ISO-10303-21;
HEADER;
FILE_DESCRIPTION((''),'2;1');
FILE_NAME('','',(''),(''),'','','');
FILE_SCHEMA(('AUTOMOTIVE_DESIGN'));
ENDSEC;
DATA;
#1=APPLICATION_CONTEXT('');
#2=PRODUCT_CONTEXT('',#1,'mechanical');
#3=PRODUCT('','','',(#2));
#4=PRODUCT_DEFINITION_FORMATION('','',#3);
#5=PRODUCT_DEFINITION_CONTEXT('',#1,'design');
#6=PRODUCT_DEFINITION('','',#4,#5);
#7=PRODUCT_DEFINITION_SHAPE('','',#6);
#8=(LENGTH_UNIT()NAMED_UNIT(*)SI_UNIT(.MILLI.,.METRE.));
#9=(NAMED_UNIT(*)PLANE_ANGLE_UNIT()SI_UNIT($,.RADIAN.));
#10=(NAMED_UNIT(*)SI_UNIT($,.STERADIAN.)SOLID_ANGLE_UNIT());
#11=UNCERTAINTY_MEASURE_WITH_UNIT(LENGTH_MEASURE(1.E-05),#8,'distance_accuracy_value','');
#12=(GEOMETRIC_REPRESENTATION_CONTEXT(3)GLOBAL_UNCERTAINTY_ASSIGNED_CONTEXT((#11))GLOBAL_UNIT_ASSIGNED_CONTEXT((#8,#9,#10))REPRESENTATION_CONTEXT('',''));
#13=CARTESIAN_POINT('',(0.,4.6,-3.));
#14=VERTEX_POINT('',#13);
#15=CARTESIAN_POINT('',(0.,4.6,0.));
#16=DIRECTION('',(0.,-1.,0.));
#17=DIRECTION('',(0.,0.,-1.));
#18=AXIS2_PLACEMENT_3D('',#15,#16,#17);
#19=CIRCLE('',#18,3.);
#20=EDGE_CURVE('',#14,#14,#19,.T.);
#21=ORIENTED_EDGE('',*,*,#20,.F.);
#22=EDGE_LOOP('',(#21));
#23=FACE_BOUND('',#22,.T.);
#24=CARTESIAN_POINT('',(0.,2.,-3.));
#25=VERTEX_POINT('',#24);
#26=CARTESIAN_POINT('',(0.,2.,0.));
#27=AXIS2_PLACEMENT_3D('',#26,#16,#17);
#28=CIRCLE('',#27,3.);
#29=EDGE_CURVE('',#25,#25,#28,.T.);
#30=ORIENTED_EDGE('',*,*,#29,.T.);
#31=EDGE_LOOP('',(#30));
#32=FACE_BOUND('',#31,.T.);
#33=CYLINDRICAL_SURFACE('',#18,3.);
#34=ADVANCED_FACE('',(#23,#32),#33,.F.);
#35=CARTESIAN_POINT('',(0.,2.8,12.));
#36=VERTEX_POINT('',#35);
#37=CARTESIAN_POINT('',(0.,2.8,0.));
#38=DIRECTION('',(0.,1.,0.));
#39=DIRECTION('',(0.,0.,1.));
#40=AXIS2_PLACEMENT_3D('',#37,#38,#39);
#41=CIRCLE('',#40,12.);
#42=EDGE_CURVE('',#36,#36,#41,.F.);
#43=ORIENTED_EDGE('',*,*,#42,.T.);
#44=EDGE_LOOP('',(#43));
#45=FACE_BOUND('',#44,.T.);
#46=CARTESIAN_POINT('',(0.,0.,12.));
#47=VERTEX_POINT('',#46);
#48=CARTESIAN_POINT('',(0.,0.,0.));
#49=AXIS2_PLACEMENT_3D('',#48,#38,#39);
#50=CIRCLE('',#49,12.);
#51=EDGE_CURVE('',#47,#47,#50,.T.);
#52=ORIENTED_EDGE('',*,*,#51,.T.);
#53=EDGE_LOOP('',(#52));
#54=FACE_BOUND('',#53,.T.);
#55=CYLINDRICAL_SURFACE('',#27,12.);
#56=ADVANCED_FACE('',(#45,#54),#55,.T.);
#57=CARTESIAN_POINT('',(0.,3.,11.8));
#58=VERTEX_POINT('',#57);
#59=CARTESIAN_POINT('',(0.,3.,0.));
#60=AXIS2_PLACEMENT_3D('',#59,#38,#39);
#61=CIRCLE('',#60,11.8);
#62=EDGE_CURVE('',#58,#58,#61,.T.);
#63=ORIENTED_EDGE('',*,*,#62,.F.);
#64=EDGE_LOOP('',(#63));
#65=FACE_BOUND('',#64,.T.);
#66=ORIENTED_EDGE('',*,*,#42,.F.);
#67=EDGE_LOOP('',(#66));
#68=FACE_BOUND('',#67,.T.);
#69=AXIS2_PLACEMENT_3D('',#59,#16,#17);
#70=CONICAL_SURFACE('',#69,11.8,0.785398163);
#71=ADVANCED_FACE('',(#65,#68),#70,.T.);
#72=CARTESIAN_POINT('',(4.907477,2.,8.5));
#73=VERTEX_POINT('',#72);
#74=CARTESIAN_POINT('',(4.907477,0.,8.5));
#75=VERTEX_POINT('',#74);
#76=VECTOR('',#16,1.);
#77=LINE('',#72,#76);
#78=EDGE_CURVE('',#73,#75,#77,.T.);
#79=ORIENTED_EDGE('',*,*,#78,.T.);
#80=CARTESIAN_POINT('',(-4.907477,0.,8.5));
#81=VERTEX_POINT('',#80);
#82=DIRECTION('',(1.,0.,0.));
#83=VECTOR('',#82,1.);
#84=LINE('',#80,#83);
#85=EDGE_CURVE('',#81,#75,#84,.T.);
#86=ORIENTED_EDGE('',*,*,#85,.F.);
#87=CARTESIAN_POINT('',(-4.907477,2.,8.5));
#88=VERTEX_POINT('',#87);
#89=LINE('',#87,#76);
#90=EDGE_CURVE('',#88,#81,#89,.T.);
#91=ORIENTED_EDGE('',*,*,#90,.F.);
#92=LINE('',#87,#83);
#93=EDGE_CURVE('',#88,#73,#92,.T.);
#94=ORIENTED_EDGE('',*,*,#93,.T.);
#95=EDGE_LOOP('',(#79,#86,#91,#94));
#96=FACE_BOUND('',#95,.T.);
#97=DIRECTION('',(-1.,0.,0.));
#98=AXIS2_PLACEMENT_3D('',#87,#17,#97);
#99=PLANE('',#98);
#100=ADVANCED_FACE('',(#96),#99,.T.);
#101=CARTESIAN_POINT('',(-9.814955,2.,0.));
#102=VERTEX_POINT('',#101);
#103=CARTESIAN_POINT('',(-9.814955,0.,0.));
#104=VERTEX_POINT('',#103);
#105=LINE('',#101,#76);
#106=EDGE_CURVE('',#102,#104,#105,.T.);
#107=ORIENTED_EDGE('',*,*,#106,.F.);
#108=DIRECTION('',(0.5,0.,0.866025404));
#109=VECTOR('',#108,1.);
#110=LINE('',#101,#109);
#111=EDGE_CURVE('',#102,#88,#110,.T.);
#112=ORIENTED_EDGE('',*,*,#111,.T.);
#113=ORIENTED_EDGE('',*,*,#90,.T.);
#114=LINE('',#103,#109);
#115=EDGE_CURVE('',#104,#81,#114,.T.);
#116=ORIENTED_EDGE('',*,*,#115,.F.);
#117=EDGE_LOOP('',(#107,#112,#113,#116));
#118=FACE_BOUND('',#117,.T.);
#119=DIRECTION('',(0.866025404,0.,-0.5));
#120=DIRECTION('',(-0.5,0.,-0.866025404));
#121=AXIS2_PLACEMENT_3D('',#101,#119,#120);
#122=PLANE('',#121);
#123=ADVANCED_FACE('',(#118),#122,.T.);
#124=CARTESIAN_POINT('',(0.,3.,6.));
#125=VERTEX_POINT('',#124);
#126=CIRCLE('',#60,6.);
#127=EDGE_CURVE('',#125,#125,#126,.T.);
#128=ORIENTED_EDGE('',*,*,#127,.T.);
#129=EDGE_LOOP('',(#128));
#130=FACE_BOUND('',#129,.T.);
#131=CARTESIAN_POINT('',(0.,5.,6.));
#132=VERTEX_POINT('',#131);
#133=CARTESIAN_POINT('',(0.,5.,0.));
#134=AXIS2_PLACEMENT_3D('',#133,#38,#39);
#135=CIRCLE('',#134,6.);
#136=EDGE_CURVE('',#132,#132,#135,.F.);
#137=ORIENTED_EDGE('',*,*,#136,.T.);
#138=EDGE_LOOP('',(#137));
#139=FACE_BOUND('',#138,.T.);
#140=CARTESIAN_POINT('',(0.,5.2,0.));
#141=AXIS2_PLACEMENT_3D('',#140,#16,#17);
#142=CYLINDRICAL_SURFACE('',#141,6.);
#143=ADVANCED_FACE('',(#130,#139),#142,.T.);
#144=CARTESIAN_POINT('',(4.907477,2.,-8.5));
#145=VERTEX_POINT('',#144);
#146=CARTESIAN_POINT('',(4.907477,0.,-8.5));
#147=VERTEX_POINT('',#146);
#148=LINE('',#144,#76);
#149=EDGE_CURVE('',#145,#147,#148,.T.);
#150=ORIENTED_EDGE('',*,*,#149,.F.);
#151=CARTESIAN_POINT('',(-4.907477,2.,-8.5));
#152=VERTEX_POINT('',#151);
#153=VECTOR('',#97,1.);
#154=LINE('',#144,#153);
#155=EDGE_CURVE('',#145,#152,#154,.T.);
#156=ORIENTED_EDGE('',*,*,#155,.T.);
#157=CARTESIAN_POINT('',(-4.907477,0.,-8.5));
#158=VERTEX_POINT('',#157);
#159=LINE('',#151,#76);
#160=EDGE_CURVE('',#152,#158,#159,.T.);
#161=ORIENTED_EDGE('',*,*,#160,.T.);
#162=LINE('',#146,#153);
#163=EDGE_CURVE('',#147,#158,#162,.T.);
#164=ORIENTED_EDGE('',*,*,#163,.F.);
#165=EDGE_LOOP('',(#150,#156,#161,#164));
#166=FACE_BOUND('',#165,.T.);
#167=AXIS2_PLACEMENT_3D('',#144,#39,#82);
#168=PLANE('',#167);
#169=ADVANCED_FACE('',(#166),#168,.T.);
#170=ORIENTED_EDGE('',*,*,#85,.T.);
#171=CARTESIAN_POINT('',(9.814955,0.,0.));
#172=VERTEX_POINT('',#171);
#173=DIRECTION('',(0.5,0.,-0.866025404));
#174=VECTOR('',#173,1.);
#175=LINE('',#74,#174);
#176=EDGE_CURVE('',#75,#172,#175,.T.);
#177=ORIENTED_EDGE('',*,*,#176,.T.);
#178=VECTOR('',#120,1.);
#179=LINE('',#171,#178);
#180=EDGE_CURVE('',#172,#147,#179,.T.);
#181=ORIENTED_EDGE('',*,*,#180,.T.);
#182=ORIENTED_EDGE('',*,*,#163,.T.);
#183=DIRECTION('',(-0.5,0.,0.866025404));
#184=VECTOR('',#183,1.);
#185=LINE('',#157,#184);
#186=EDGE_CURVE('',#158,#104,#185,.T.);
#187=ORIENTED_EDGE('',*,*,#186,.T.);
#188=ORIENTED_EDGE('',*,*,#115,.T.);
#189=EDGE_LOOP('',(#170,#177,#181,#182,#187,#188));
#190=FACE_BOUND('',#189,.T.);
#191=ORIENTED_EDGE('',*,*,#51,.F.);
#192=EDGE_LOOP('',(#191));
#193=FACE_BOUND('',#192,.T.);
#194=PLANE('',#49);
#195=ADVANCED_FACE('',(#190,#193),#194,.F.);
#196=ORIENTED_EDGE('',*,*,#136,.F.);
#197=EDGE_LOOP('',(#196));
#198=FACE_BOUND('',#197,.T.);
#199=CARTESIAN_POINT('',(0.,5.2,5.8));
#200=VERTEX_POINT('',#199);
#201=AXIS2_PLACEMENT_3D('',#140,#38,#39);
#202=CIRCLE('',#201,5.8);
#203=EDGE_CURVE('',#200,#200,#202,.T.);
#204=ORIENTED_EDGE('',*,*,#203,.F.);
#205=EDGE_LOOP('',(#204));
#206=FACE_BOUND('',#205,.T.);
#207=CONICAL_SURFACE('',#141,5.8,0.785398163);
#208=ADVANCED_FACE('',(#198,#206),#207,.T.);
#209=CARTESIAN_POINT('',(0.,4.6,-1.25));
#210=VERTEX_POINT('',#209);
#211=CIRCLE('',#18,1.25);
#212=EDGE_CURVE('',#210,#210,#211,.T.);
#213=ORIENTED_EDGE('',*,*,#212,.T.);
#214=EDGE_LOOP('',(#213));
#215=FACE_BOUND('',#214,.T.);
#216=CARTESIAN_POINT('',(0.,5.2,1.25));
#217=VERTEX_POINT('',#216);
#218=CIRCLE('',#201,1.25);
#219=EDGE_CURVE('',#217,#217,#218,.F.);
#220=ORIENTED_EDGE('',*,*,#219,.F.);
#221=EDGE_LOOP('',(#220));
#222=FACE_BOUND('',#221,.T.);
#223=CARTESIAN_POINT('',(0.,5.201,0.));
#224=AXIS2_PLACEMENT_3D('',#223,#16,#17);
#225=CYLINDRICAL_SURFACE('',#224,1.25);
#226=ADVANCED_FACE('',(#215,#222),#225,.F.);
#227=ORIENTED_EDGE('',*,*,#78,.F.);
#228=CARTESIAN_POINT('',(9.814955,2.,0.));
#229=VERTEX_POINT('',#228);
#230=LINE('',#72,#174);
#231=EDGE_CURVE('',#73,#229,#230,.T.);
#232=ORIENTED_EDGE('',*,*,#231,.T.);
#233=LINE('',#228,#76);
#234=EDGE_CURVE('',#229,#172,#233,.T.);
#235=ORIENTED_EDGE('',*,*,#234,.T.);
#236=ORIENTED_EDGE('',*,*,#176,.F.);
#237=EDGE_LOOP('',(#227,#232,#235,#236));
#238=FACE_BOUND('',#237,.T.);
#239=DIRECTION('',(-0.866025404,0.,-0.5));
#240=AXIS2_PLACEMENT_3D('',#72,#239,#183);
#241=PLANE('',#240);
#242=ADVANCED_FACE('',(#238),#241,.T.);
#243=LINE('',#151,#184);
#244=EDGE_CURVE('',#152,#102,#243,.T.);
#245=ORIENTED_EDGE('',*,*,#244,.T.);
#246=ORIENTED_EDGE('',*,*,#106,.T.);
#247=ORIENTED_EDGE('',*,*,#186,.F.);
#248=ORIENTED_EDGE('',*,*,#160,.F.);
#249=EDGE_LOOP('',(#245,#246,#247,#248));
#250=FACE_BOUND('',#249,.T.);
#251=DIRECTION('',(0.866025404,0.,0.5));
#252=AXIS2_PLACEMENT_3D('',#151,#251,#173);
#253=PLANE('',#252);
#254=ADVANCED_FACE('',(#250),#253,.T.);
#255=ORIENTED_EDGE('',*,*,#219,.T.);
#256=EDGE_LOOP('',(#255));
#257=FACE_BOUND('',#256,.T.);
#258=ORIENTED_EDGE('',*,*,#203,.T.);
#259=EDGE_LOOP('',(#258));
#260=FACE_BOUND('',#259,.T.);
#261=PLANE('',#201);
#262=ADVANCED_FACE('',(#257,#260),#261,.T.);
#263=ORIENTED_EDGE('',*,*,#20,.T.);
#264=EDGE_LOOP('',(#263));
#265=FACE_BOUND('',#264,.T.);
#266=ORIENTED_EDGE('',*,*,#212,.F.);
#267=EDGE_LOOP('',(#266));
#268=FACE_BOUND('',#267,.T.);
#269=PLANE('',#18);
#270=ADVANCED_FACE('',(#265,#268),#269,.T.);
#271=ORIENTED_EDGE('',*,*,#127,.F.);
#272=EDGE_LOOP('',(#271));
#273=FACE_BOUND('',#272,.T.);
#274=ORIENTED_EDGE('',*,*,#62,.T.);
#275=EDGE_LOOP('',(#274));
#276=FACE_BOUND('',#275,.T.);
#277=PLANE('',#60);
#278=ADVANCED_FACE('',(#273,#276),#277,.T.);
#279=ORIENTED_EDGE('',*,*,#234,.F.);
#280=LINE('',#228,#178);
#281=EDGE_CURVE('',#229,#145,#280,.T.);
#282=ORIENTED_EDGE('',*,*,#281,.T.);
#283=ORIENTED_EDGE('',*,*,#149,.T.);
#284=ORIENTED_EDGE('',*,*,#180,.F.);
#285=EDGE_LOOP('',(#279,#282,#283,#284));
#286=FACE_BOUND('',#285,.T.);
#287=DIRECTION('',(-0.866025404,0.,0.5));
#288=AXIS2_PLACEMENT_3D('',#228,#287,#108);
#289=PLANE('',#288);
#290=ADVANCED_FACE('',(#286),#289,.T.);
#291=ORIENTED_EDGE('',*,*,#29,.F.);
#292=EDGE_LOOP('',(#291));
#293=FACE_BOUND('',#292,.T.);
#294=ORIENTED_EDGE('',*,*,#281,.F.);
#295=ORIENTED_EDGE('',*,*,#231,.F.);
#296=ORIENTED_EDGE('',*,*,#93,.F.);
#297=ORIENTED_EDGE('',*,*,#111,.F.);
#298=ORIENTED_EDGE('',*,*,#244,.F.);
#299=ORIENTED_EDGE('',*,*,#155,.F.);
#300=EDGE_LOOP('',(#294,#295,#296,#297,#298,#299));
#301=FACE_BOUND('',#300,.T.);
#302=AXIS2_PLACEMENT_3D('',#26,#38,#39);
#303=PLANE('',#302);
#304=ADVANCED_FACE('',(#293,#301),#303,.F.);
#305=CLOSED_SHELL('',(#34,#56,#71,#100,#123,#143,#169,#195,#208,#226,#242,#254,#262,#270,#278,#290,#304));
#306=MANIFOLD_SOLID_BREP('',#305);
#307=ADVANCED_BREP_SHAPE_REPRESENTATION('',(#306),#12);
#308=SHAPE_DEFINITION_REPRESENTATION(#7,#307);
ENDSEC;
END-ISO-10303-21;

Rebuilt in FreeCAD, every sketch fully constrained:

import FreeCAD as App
import Part
import Sketcher

V = App.Vector
Q = App.Units.Quantity


def edges_at(feature, points):
    """Names of the edges that pass closest to the given points."""
    edges = feature.Shape.Edges
    near = lambda p: min(range(len(edges)), key=lambda i: edges[i].distToShape(Part.Vertex(*p))[0])
    return sorted({f"Edge{near(p) + 1}" for p in points})

doc = App.newDocument("Part")
body = doc.addObject("PartDesign::Body", "Body")

sketch1 = body.newObject("Sketcher::SketchObject", "Sketch")
sketch1.AttachmentSupport = (doc.getObject("XZ_Plane"), [""])
sketch1.MapMode = "FlatFace"
sketch1.addGeometry([
    Part.Circle(V(0, 0, 0), V(0, 0, 1), 12),
    Part.LineSegment(V(5, 8, 0), V(-5, 8, 0)),
    Part.LineSegment(V(-5, 8, 0), V(-10, 0, 0)),
    Part.LineSegment(V(-10, 0, 0), V(-5, -8, 0)),
    Part.LineSegment(V(-5, -8, 0), V(5, -8, 0)),
    Part.LineSegment(V(5, -8, 0), V(10, 0, 0)),
    Part.LineSegment(V(10, 0, 0), V(5, 8, 0)),
], False)
sketch1.addConstraint([
    Sketcher.Constraint("Coincident", 1, 2, 2, 1),
    Sketcher.Constraint("Coincident", 2, 2, 3, 1),
    Sketcher.Constraint("Coincident", 3, 2, 4, 1),
    Sketcher.Constraint("Coincident", 4, 2, 5, 1),
    Sketcher.Constraint("Coincident", 5, 2, 6, 1),
    Sketcher.Constraint("Coincident", 6, 2, 1, 1),
    Sketcher.Constraint("Horizontal", 1),
    Sketcher.Constraint("Horizontal", 4),
    Sketcher.Constraint("Coincident", 0, 3, -1, 1),
    Sketcher.Constraint("Symmetric", 1, 2, 4, 2, -1, 1),
    Sketcher.Constraint("Symmetric", 2, 2, 5, 2, -1, 1),
    Sketcher.Constraint("PointOnObject", 2, 2, -1),
    Sketcher.Constraint("Parallel", 3, 6),
    Sketcher.Constraint("Vertical", 1, 2, 3, 2),
    Sketcher.Constraint("Diameter", 0, Q("24 mm")),
    Sketcher.Constraint("Angle", 2, Q("-120 deg")),
    Sketcher.Constraint("DistanceY", 3, 2, 1, 2, Q("17 mm")),
    Sketcher.Constraint("DistanceX", 1, 2, 1, 1, Q("9.814955 mm")),
])
pad1 = body.newObject("PartDesign::Pad", "Pad")
pad1.Profile = sketch1
pad1.Length = 2
pad1.Reversed = True

sketch2 = body.newObject("Sketcher::SketchObject", "Sketch001")
sketch2.AttachmentSupport = (doc.getObject("XZ_Plane"), [""])
sketch2.MapMode = "FlatFace"
sketch2.AttachmentOffset = App.Placement(V(0, 0, -2), App.Rotation())
sketch2.addGeometry(Part.Circle(V(0, 0, 0), V(0, 0, 1), 12), False)
sketch2.addConstraint([
    Sketcher.Constraint("Coincident", 0, 3, -1, 1),
    Sketcher.Constraint("Diameter", 0, Q("24 mm")),
])
pad2 = body.newObject("PartDesign::Pad", "Pad001")
pad2.Profile = sketch2
pad2.Length = 1
pad2.Reversed = True

sketch3 = body.newObject("Sketcher::SketchObject", "Sketch002")
sketch3.AttachmentSupport = (doc.getObject("XZ_Plane"), [""])
sketch3.MapMode = "FlatFace"
sketch3.AttachmentOffset = App.Placement(V(0, 0, -3), App.Rotation())
sketch3.addGeometry(Part.Circle(V(0, 0, 0), V(0, 0, 1), 6), False)
sketch3.addConstraint([
    Sketcher.Constraint("Coincident", 0, 3, -1, 1),
    Sketcher.Constraint("Diameter", 0, Q("12 mm")),
])
pad3 = body.newObject("PartDesign::Pad", "Pad002")
pad3.Profile = sketch3
pad3.Length = 2.2
pad3.Reversed = True

sketch4 = body.newObject("Sketcher::SketchObject", "Sketch003")
sketch4.AttachmentSupport = (doc.getObject("XZ_Plane"), [""])
sketch4.MapMode = "FlatFace"
sketch4.AttachmentOffset = App.Placement(V(0, 0, -2), App.Rotation())
sketch4.addGeometry(Part.Circle(V(0, 0, 0), V(0, 0, 1), 3), False)
sketch4.addConstraint([
    Sketcher.Constraint("Coincident", 0, 3, -1, 1),
    Sketcher.Constraint("Diameter", 0, Q("6 mm")),
])
pocket1 = body.newObject("PartDesign::Pocket", "Pocket")
pocket1.Profile = sketch4
pocket1.Length = 2.6

sketch5 = body.newObject("Sketcher::SketchObject", "Sketch004")
sketch5.AttachmentSupport = (doc.getObject("XZ_Plane"), [""])
sketch5.MapMode = "FlatFace"
sketch5.AttachmentOffset = App.Placement(V(0, 0, -4.6), App.Rotation())
sketch5.addGeometry(Part.Circle(V(0, 0, 0), V(0, 0, 1), 1.2), False)
sketch5.addConstraint([
    Sketcher.Constraint("Coincident", 0, 3, -1, 1),
    Sketcher.Constraint("Diameter", 0, Q("2.5 mm")),
])
pocket2 = body.newObject("PartDesign::Pocket", "Pocket001")
pocket2.Profile = sketch5
pocket2.Type = "UpToFirst"
doc.recompute()

chamfer = body.newObject("PartDesign::Chamfer", "Chamfer")
chamfer.Base = (pocket2, edges_at(pocket2, [(0, 3, -12), (0, 5.2, -6)]))
chamfer.Size = 0.2

doc.recompute()
